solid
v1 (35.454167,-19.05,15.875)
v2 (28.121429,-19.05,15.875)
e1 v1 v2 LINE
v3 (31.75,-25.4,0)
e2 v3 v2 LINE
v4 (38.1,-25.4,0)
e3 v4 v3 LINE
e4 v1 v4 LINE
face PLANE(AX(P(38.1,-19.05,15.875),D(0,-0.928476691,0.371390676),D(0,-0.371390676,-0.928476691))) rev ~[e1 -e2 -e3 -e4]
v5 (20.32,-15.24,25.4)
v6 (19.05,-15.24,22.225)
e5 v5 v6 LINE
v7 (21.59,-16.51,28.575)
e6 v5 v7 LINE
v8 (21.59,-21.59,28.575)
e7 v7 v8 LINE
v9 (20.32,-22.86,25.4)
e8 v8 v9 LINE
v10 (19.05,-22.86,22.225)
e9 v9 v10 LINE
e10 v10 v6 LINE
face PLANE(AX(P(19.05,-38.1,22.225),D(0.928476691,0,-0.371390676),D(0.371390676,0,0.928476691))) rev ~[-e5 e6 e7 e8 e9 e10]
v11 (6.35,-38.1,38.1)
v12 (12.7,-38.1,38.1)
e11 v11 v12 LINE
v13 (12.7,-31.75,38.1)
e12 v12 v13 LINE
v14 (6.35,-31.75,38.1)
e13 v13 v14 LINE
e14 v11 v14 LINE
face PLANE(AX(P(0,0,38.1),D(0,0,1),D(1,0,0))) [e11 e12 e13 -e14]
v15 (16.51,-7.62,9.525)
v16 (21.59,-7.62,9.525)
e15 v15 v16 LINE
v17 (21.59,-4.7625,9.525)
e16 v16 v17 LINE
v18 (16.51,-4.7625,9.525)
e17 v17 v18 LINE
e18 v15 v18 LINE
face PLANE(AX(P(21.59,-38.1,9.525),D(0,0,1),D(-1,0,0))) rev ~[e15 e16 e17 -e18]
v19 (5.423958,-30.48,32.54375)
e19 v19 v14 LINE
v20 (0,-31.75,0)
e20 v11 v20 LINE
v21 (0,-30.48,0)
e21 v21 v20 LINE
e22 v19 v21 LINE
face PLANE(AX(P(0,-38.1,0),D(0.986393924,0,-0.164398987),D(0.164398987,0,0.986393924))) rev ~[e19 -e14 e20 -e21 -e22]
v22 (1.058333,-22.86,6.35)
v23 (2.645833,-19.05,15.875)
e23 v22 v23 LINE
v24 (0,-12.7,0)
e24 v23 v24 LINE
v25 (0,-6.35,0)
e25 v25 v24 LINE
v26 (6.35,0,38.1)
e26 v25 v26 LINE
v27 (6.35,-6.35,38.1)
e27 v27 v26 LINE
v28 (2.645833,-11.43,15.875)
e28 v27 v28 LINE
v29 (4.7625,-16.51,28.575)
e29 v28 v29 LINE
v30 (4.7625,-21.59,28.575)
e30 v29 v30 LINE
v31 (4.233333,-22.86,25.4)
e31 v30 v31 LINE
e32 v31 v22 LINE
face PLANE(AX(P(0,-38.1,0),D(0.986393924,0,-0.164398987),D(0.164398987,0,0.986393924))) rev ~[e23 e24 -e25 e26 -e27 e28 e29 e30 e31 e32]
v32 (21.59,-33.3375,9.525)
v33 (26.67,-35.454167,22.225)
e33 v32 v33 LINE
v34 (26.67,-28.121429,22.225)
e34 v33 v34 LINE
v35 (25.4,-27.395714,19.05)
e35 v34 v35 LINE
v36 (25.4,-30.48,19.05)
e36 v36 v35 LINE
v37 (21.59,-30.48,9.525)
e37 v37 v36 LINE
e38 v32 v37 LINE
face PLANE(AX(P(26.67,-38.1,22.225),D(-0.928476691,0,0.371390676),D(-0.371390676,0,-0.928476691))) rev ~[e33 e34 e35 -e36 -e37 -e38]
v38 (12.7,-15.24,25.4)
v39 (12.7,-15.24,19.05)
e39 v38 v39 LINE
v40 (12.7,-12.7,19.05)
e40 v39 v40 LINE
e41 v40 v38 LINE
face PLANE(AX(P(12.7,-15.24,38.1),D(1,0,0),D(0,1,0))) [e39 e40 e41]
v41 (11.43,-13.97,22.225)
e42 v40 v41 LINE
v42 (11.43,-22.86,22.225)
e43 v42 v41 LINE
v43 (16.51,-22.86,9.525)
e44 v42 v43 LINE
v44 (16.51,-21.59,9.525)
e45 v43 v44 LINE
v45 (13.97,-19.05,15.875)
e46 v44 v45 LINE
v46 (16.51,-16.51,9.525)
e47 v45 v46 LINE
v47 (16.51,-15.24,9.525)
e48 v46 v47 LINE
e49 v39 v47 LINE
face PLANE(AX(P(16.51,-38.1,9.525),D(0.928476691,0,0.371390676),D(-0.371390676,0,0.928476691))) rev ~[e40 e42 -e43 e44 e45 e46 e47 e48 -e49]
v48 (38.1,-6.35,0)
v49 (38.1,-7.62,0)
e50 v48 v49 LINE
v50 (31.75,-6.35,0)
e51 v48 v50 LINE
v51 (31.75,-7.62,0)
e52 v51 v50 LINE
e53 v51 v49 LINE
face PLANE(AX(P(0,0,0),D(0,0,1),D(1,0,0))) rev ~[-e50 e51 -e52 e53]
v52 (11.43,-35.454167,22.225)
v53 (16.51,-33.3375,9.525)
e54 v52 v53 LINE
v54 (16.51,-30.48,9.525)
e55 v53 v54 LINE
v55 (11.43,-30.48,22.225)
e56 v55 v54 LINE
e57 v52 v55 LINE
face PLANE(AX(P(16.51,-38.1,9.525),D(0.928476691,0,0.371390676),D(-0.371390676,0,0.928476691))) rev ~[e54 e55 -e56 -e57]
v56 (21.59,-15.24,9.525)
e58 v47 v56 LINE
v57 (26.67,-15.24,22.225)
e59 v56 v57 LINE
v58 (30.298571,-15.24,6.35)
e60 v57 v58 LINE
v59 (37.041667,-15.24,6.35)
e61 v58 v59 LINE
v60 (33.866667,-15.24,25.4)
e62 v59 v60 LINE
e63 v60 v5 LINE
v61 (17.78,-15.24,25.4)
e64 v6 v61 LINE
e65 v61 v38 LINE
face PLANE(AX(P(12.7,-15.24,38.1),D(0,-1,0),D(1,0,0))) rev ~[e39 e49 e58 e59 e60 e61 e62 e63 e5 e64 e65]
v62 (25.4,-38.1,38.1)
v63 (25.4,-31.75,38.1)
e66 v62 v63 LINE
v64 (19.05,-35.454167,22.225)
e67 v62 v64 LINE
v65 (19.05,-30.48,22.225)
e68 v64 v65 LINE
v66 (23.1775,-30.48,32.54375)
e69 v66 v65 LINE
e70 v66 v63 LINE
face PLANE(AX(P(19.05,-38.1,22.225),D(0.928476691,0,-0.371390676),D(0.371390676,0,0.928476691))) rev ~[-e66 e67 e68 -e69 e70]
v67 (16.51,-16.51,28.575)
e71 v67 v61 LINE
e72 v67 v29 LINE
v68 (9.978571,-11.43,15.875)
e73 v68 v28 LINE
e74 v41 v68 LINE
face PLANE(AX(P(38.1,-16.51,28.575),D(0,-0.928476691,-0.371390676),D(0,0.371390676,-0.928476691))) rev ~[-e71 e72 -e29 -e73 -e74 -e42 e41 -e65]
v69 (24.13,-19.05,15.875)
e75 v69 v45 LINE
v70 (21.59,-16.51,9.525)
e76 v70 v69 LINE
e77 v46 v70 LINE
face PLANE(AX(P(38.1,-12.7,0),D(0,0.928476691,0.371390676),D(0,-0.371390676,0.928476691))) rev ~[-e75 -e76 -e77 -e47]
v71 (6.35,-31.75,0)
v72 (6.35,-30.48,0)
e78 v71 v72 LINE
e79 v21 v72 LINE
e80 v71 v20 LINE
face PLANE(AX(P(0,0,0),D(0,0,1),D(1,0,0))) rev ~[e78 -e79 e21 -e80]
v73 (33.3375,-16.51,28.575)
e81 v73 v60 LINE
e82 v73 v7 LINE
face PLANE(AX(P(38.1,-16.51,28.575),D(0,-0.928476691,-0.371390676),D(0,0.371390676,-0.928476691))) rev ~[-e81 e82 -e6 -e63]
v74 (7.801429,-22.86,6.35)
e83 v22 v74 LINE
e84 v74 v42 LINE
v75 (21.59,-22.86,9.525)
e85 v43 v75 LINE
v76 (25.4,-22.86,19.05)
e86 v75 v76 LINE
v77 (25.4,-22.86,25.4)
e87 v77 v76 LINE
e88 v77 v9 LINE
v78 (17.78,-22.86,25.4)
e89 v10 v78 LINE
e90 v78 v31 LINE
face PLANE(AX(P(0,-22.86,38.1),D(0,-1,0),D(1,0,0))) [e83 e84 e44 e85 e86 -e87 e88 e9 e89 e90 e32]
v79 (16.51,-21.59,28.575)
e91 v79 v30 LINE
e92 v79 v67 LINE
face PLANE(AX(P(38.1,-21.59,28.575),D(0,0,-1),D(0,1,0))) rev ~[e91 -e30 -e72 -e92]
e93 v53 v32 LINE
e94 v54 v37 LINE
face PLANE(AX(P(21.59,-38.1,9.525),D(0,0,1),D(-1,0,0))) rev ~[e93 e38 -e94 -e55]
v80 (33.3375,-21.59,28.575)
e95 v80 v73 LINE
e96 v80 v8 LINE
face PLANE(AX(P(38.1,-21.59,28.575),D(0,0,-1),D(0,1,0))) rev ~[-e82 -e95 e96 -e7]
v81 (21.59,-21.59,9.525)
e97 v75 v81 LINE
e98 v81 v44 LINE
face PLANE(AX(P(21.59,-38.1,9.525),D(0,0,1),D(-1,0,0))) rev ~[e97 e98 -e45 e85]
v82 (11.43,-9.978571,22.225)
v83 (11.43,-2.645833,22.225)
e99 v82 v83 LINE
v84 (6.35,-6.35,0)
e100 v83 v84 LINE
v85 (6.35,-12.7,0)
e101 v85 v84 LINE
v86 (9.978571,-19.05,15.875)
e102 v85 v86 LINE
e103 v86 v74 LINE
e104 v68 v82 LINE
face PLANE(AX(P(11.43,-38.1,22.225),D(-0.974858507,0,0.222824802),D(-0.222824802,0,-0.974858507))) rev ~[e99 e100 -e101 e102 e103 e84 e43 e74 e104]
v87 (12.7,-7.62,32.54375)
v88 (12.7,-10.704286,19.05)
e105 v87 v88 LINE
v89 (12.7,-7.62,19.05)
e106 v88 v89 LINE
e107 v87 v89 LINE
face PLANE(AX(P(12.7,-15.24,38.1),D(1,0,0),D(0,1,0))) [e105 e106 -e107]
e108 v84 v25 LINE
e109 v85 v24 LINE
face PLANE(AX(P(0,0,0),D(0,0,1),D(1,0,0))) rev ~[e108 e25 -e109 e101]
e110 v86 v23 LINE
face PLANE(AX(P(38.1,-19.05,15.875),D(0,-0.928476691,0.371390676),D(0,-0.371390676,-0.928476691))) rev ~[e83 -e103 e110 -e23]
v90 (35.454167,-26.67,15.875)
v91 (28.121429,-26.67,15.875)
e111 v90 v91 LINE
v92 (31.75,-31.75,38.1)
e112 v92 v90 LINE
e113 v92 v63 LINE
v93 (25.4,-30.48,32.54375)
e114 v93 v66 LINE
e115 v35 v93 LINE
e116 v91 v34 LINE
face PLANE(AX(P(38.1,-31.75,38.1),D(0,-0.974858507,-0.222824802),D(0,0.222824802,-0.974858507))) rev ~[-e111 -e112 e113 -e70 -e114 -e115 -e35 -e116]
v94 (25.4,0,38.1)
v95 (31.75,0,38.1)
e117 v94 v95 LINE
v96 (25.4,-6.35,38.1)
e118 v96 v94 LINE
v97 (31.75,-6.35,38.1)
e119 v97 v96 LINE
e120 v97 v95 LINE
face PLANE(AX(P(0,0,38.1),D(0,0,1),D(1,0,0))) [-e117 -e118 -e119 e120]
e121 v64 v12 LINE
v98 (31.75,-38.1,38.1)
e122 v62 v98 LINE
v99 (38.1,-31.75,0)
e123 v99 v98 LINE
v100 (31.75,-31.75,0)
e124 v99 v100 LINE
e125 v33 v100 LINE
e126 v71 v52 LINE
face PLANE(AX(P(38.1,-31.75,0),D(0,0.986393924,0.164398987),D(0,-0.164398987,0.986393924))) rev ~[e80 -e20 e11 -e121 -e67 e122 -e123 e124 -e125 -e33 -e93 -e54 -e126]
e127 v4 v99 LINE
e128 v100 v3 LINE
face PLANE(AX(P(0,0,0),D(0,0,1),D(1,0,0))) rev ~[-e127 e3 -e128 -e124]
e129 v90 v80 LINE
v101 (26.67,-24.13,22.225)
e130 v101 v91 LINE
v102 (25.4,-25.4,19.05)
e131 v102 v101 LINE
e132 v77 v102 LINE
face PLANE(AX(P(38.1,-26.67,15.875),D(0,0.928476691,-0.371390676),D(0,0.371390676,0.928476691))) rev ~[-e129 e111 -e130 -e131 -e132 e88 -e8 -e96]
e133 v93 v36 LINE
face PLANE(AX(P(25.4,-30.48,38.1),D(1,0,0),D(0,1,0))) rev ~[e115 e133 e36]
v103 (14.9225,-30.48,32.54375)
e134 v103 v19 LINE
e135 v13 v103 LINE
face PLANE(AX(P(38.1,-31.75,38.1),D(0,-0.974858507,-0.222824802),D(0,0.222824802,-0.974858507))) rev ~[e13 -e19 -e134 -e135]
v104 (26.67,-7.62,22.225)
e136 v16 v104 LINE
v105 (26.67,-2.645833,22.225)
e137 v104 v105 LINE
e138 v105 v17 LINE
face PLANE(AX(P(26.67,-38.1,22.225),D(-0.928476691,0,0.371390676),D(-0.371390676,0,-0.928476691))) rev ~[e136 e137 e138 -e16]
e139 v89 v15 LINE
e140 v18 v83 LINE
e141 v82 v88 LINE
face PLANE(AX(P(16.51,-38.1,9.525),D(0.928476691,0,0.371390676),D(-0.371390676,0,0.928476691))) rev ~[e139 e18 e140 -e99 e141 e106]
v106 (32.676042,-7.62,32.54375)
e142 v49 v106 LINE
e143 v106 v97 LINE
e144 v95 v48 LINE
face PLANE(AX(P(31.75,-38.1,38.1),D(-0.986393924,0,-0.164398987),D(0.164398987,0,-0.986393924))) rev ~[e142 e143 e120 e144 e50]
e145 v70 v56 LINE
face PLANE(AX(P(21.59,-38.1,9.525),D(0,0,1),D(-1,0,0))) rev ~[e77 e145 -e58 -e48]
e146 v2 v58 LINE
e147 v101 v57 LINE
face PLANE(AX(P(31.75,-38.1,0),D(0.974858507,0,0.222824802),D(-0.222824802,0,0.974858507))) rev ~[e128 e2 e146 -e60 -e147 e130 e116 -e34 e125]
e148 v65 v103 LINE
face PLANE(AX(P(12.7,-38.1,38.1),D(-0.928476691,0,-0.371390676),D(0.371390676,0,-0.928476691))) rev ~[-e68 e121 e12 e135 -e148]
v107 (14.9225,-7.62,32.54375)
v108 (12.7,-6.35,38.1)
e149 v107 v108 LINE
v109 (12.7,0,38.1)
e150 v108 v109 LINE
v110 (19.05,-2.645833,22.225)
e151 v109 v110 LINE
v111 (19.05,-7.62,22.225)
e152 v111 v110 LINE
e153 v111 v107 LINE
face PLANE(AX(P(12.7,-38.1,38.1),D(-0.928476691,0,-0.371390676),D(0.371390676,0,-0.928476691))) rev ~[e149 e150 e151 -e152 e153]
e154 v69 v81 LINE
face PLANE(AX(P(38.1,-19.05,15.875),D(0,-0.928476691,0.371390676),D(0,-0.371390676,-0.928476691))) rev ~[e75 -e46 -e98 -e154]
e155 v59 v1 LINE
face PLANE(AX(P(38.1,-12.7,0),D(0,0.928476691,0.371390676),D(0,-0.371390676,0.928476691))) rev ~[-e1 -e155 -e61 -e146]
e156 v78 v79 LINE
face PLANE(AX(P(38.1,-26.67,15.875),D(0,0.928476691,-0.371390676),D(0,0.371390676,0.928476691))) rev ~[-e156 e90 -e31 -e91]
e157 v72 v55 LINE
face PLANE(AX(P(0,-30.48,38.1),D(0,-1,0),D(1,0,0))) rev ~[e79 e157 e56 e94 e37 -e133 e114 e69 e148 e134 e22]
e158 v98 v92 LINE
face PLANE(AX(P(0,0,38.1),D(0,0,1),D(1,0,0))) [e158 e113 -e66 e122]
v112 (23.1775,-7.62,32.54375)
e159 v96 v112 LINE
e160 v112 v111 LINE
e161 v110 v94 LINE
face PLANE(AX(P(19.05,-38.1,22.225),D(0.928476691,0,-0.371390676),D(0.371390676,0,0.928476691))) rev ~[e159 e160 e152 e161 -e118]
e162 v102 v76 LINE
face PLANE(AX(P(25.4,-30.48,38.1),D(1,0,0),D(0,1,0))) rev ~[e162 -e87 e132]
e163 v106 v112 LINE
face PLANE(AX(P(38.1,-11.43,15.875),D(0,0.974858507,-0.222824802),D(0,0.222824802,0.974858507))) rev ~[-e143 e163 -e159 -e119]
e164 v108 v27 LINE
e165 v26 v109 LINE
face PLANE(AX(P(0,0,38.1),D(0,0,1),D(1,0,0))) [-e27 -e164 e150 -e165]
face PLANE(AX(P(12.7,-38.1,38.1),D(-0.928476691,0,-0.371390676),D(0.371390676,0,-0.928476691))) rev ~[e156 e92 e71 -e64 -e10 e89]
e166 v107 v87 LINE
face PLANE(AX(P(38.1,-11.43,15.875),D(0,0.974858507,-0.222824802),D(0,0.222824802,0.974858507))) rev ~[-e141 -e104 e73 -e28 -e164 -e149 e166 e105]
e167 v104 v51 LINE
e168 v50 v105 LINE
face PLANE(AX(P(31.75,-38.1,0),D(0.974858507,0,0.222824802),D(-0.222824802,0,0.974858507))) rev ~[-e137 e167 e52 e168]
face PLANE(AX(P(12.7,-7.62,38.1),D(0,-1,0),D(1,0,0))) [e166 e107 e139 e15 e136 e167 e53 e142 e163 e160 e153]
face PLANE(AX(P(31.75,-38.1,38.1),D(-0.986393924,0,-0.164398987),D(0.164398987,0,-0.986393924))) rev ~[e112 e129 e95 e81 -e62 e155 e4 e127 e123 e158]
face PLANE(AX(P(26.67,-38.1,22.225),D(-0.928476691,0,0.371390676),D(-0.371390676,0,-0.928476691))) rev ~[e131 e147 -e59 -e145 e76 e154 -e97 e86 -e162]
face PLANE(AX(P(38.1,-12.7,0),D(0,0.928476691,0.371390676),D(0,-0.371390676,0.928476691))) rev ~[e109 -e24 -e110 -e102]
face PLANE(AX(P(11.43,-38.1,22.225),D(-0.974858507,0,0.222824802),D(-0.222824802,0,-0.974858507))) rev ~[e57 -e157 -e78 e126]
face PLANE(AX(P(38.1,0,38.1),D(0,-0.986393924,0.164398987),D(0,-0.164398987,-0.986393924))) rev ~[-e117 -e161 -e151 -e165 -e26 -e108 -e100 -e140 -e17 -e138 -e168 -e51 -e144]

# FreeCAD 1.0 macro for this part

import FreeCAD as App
import Part
import Sketcher

V = App.Vector
Q = App.Units.Quantity

doc = App.newDocument("Part")
body = doc.addObject("PartDesign::Body", "Body")

# Sketch on XZ plane
sketch1 = doc.addObject("Sketcher::SketchObject", "Sketch")
body.addObject(sketch1)
sketch1.AttachmentSupport = (doc.XZ_Plane, [""])
sketch1.MapMode = "FlatFace"
sketch1.addGeometry([
    Part.LineSegment(V(0, 38.1, 0), V(0, 0, 0)),
    Part.LineSegment(V(0, 0, 0), V(38.1, 0, 0)),
    Part.LineSegment(V(38.1, 0, 0), V(38.1, 38.1, 0)),
    Part.LineSegment(V(38.1, 38.1, 0), V(0, 38.1, 0)),
], False)
sketch1.addConstraint([
    Sketcher.Constraint("Coincident", 0, 2, 1, 1),
    Sketcher.Constraint("Coincident", 1, 2, 2, 1),
    Sketcher.Constraint("Coincident", 2, 2, 3, 1),
    Sketcher.Constraint("Coincident", 3, 2, 0, 1),
    Sketcher.Constraint("Vertical", 0),
    Sketcher.Constraint("Horizontal", 1),
    Sketcher.Constraint("Vertical", 2),
    Sketcher.Constraint("Horizontal", 3),
    Sketcher.Constraint("Coincident", 0, 2, -1, 1),
    Sketcher.Constraint("Equal", 3, 0),
    Sketcher.Constraint("DistanceX", 1, 1, 1, 2, Q("1.5 in")),
])
pad1 = doc.addObject("PartDesign::Pad", "Pad")
body.addObject(pad1)
pad1.Profile = sketch1
pad1.Length = Q("1.5 in")

# Sketch on YZ plane
sketch2 = doc.addObject("Sketcher::SketchObject", "Sketch001")
body.addObject(sketch2)
sketch2.AttachmentSupport = (doc.YZ_Plane, [""])
sketch2.MapMode = "FlatFace"
sketch2.AttachmentOffset = App.Placement(V(0, 0, 1.5 * 25.4), App.Rotation())
sketch2.addGeometry([
    Part.LineSegment(V(-11.43, 15.875, 0), V(-6.35, 38.1, 0)),  # 0
    Part.LineSegment(V(-6.35, 38.1, 0), V(-31.75, 38.1, 0)),  # 1
    Part.LineSegment(V(-31.75, 38.1, 0), V(-26.67, 15.875, 0)),  # 2
    Part.LineSegment(V(-26.67, 15.875, 0), V(-21.59, 28.575, 0)),  # 3
    Part.LineSegment(V(-21.59, 28.575, 0), V(-16.51, 28.575, 0)),  # 4
    Part.LineSegment(V(-16.51, 28.575, 0), V(-11.43, 15.875, 0)),  # 5
    Part.LineSegment(V(-31.75, 0, 0), V(-38.1, 38.1, 0)),  # 6
    Part.LineSegment(V(-38.1, 38.1, 0), V(-38.1, 0, 0)),  # 7
    Part.LineSegment(V(-38.1, 0, 0), V(-31.75, 0, 0)),  # 8
    Part.LineSegment(V(-25.4, 0, 0), V(-12.7, 0, 0)),  # 9
    Part.LineSegment(V(-12.7, 0, 0), V(-19.05, 15.875, 0)),  # 10
    Part.LineSegment(V(-19.05, 15.875, 0), V(-25.4, 0, 0)),  # 11
    Part.LineSegment(V(-6.35, 0, 0), V(0, 0, 0)),  # 12
    Part.LineSegment(V(0, 0, 0), V(0, 38.1, 0)),  # 13
    Part.LineSegment(V(0, 38.1, 0), V(-6.35, 0, 0)),  # 14
], False)
sketch2.addConstraint([
    Sketcher.Constraint("Coincident", 0, 2, 1, 1),
    Sketcher.Constraint("Coincident", 1, 2, 2, 1),
    Sketcher.Constraint("Coincident", 2, 2, 3, 1),
    Sketcher.Constraint("Coincident", 3, 2, 4, 1),
    Sketcher.Constraint("Coincident", 4, 2, 5, 1),
    Sketcher.Constraint("Coincident", 5, 2, 0, 1),
    Sketcher.Constraint("Coincident", 6, 2, 7, 1),
    Sketcher.Constraint("Coincident", 7, 2, 8, 1),
    Sketcher.Constraint("Coincident", 8, 2, 6, 1),
    Sketcher.Constraint("Coincident", 9, 2, 10, 1),
    Sketcher.Constraint("Coincident", 10, 2, 11, 1),
    Sketcher.Constraint("Coincident", 11, 2, 9, 1),
    Sketcher.Constraint("Coincident", 12, 2, 13, 1),
    Sketcher.Constraint("Coincident", 13, 2, 14, 1),
    Sketcher.Constraint("Coincident", 14, 2, 12, 1),
    Sketcher.Constraint("Horizontal", 1),
    Sketcher.Constraint("Horizontal", 4),
    Sketcher.Constraint("Vertical", 7),
    Sketcher.Constraint("Horizontal", 8),
    Sketcher.Constraint("Horizontal", 9),
    Sketcher.Constraint("Horizontal", 12),
    Sketcher.Constraint("Vertical", 13),
    Sketcher.Constraint("Coincident", 12, 2, -1, 1),
    Sketcher.Constraint("PointOnObject", 7, 2, -1),
    Sketcher.Constraint("PointOnObject", 9, 2, -1),
    Sketcher.Constraint("Parallel", 5, 10),
    Sketcher.Constraint("Parallel", 3, 11),
    Sketcher.Constraint("Horizontal", 2, 2, 5, 2),
    Sketcher.Constraint("Horizontal", 1, 2, 6, 2),
    Sketcher.Constraint("Horizontal", 5, 2, 10, 2),
    Sketcher.Constraint("Horizontal", 6, 2, 13, 2),
    Sketcher.Constraint("Vertical", 1, 2, 8, 2),
    Sketcher.Constraint("Vertical", 0, 2, 14, 2),
    Sketcher.Constraint("Equal", 8, 12),
    Sketcher.Constraint("Equal", 0, 2),
    Sketcher.Constraint("Equal", 3, 5),
    Sketcher.Constraint("DistanceX", 1, 2, 1, 1, Q("1 in")),
    Sketcher.Constraint("DistanceX", 4, 1, 4, 2, Q("0.2 in")),
    Sketcher.Constraint("DistanceX", 9, 1, 9, 2, Q("0.5 in")),
    Sketcher.Constraint("DistanceY", 7, 2, 7, 1, Q("1.5 in")),
    Sketcher.Constraint("DistanceX", 11, 2, -1, 1, Q("1 in")),
    Sketcher.Constraint("DistanceX", 7, 2, 9, 2, Q("1 in")),
    Sketcher.Constraint("DistanceX", 1, 2, 2, 2, Q("0.2 in")),
    Sketcher.Constraint("DistanceY", 2, 2, 3, 2, Q("0.5 in")),
])
pocket1 = doc.addObject("PartDesign::Pocket", "Pocket")
body.addObject(pocket1)
pocket1.Profile = sketch2
pocket1.Length = Q("1.5 in")

# Sketch on XZ plane
sketch3 = doc.addObject("Sketcher::SketchObject", "Sketch002")
body.addObject(sketch3)
sketch3.AttachmentSupport = (doc.XZ_Plane, [""])
sketch3.MapMode = "FlatFace"
sketch3.AttachmentOffset = App.Placement(V(0, 0, 1.5 * 25.4), App.Rotation())
sketch3.addGeometry([
    Part.LineSegment(V(0, 38.1, 0), V(0, 0, 0)),  # 0
    Part.LineSegment(V(0, 0, 0), V(6.35, 38.1, 0)),  # 1
    Part.LineSegment(V(6.35, 38.1, 0), V(0, 38.1, 0)),  # 2
    Part.LineSegment(V(25.4, 38.1, 0), V(12.7, 38.1, 0)),  # 3
    Part.LineSegment(V(12.7, 38.1, 0), V(19.05, 22.225, 0)),  # 4
    Part.LineSegment(V(19.05, 22.225, 0), V(25.4, 38.1, 0)),  # 5
    Part.LineSegment(V(31.75, 38.1, 0), V(38.1, 0, 0)),  # 6
    Part.LineSegment(V(38.1, 0, 0), V(38.1, 38.1, 0)),  # 7
    Part.LineSegment(V(38.1, 38.1, 0), V(31.75, 38.1, 0)),  # 8
    Part.LineSegment(V(11.43, 22.225, 0), V(6.35, 0, 0)),  # 9
    Part.LineSegment(V(6.35, 0, 0), V(31.75, 0, 0)),  # 10
    Part.LineSegment(V(31.75, 0, 0), V(26.67, 22.225, 0)),  # 11
    Part.LineSegment(V(26.67, 22.225, 0), V(21.59, 9.525, 0)),  # 12
    Part.LineSegment(V(21.59, 9.525, 0), V(16.51, 9.525, 0)),  # 13
    Part.LineSegment(V(16.51, 9.525, 0), V(11.43, 22.225, 0)),  # 14
], False)
sketch3.addConstraint([
    Sketcher.Constraint("Coincident", 0, 2, 1, 1),
    Sketcher.Constraint("Coincident", 1, 2, 2, 1),
    Sketcher.Constraint("Coincident", 2, 2, 0, 1),
    Sketcher.Constraint("Coincident", 3, 2, 4, 1),
    Sketcher.Constraint("Coincident", 4, 2, 5, 1),
    Sketcher.Constraint("Coincident", 5, 2, 3, 1),
    Sketcher.Constraint("Coincident", 6, 2, 7, 1),
    Sketcher.Constraint("Coincident", 7, 2, 8, 1),
    Sketcher.Constraint("Coincident", 8, 2, 6, 1),
    Sketcher.Constraint("Coincident", 9, 2, 10, 1),
    Sketcher.Constraint("Coincident", 10, 2, 11, 1),
    Sketcher.Constraint("Coincident", 11, 2, 12, 1),
    Sketcher.Constraint("Coincident", 12, 2, 13, 1),
    Sketcher.Constraint("Coincident", 13, 2, 14, 1),
    Sketcher.Constraint("Coincident", 14, 2, 9, 1),
    Sketcher.Constraint("Vertical", 0),
    Sketcher.Constraint("Horizontal", 2),
    Sketcher.Constraint("Horizontal", 3),
    Sketcher.Constraint("Vertical", 7),
    Sketcher.Constraint("Horizontal", 8),
    Sketcher.Constraint("Horizontal", 10),
    Sketcher.Constraint("Horizontal", 13),
    Sketcher.Constraint("Coincident", 0, 2, -1, 1),
    Sketcher.Constraint("PointOnObject", 6, 2, -1),
    Sketcher.Constraint("PointOnObject", 9, 2, -1),
    Sketcher.Constraint("Parallel", 5, 12),
    Sketcher.Constraint("Parallel", 4, 14),
    Sketcher.Constraint("Horizontal", 2, 2, 3, 2),
    Sketcher.Constraint("Horizontal", 5, 2, 7, 2),
    Sketcher.Constraint("Horizontal", 4, 2, 11, 2),
    Sketcher.Constraint("Horizontal", 11, 2, 14, 2),
    Sketcher.Constraint("Vertical", 1, 2, 9, 2),
    Sketcher.Constraint("Vertical", 8, 2, 10, 2),
    Sketcher.Constraint("Equal", 2, 8),
    Sketcher.Constraint("Equal", 4, 5),
    Sketcher.Constraint("Equal", 9, 11),
    Sketcher.Constraint("DistanceX", 10, 1, 10, 2, Q("1 in")),
    Sketcher.Constraint("DistanceX", 3, 2, 3, 1, Q("0.5 in")),
    Sketcher.Constraint("DistanceX", 13, 2, 13, 1, Q("0.2 in")),
    Sketcher.Constraint("DistanceY", 0, 2, 0, 1, Q("1.5 in")),
    Sketcher.Constraint("DistanceX", -1, 1, 5, 2, Q("1 in")),
    Sketcher.Constraint("DistanceX", 3, 2, 6, 2, Q("1 in")),
    Sketcher.Constraint("DistanceX", 4, 2, 11, 2, Q("0.3 in")),
    Sketcher.Constraint("DistanceY", 12, 2, 4, 2, Q("0.5 in")),
])
pocket2 = doc.addObject("PartDesign::Pocket", "Pocket001")
body.addObject(pocket2)
pocket2.Profile = sketch3
pocket2.Length = Q("1.5 in")

# Sketch on XY plane
sketch4 = doc.addObject("Sketcher::SketchObject", "Sketch003")
body.addObject(sketch4)
sketch4.AttachmentSupport = (doc.XY_Plane, [""])
sketch4.MapMode = "FlatFace"
sketch4.AttachmentOffset = App.Placement(V(0, 0, 1.5 * 25.4), App.Rotation())
sketch4.addGeometry([
    Part.LineSegment(V(12.7, -7.62, 0), V(12.7, -15.24, 0)),  # 0
    Part.LineSegment(V(12.7, -15.24, 0), V(38.1, -15.24, 0)),  # 1
    Part.LineSegment(V(38.1, -15.24, 0), V(38.1, -7.62, 0)),  # 2
    Part.LineSegment(V(38.1, -7.62, 0), V(12.7, -7.62, 0)),  # 3
    Part.LineSegment(V(0, -22.86, 0), V(0, -30.48, 0)),  # 4
    Part.LineSegment(V(0, -30.48, 0), V(25.4, -30.48, 0)),  # 5
    Part.LineSegment(V(25.4, -30.48, 0), V(25.4, -22.86, 0)),  # 6
    Part.LineSegment(V(25.4, -22.86, 0), V(0, -22.86, 0)),  # 7
], False)
sketch4.addConstraint([
    Sketcher.Constraint("Coincident", 0, 2, 1, 1),
    Sketcher.Constraint("Coincident", 1, 2, 2, 1),
    Sketcher.Constraint("Coincident", 2, 2, 3, 1),
    Sketcher.Constraint("Coincident", 3, 2, 0, 1),
    Sketcher.Constraint("Coincident", 4, 2, 5, 1),
    Sketcher.Constraint("Coincident", 5, 2, 6, 1),
    Sketcher.Constraint("Coincident", 6, 2, 7, 1),
    Sketcher.Constraint("Coincident", 7, 2, 4, 1),
    Sketcher.Constraint("Vertical", 0),
    Sketcher.Constraint("Horizontal", 1),
    Sketcher.Constraint("Vertical", 2),
    Sketcher.Constraint("Horizontal", 3),
    Sketcher.Constraint("Vertical", 4),
    Sketcher.Constraint("Horizontal", 5),
    Sketcher.Constraint("Vertical", 6),
    Sketcher.Constraint("Horizontal", 7),
    Sketcher.Constraint("PointOnObject", 4, 2, -2),
    Sketcher.Constraint("Equal", 3, 5),
    Sketcher.Constraint("Equal", 2, 4),
    Sketcher.Constraint("DistanceX", 1, 1, 1, 2, Q("1 in")),
    Sketcher.Constraint("DistanceY", 0, 2, 0, 1, Q("0.3 in")),
    Sketcher.Constraint("DistanceX", -1, 1, 0, 2, Q("0.5 in")),
    Sketcher.Constraint("DistanceY", 0, 2, -1, 1, Q("0.6 in")),
    Sketcher.Constraint("DistanceY", 4, 2, -1, 1, Q("1.2 in")),
])
pocket3 = doc.addObject("PartDesign::Pocket", "Pocket002")
body.addObject(pocket3)
pocket3.Profile = sketch4
pocket3.Length = Q("1.5 in")

doc.recompute()
